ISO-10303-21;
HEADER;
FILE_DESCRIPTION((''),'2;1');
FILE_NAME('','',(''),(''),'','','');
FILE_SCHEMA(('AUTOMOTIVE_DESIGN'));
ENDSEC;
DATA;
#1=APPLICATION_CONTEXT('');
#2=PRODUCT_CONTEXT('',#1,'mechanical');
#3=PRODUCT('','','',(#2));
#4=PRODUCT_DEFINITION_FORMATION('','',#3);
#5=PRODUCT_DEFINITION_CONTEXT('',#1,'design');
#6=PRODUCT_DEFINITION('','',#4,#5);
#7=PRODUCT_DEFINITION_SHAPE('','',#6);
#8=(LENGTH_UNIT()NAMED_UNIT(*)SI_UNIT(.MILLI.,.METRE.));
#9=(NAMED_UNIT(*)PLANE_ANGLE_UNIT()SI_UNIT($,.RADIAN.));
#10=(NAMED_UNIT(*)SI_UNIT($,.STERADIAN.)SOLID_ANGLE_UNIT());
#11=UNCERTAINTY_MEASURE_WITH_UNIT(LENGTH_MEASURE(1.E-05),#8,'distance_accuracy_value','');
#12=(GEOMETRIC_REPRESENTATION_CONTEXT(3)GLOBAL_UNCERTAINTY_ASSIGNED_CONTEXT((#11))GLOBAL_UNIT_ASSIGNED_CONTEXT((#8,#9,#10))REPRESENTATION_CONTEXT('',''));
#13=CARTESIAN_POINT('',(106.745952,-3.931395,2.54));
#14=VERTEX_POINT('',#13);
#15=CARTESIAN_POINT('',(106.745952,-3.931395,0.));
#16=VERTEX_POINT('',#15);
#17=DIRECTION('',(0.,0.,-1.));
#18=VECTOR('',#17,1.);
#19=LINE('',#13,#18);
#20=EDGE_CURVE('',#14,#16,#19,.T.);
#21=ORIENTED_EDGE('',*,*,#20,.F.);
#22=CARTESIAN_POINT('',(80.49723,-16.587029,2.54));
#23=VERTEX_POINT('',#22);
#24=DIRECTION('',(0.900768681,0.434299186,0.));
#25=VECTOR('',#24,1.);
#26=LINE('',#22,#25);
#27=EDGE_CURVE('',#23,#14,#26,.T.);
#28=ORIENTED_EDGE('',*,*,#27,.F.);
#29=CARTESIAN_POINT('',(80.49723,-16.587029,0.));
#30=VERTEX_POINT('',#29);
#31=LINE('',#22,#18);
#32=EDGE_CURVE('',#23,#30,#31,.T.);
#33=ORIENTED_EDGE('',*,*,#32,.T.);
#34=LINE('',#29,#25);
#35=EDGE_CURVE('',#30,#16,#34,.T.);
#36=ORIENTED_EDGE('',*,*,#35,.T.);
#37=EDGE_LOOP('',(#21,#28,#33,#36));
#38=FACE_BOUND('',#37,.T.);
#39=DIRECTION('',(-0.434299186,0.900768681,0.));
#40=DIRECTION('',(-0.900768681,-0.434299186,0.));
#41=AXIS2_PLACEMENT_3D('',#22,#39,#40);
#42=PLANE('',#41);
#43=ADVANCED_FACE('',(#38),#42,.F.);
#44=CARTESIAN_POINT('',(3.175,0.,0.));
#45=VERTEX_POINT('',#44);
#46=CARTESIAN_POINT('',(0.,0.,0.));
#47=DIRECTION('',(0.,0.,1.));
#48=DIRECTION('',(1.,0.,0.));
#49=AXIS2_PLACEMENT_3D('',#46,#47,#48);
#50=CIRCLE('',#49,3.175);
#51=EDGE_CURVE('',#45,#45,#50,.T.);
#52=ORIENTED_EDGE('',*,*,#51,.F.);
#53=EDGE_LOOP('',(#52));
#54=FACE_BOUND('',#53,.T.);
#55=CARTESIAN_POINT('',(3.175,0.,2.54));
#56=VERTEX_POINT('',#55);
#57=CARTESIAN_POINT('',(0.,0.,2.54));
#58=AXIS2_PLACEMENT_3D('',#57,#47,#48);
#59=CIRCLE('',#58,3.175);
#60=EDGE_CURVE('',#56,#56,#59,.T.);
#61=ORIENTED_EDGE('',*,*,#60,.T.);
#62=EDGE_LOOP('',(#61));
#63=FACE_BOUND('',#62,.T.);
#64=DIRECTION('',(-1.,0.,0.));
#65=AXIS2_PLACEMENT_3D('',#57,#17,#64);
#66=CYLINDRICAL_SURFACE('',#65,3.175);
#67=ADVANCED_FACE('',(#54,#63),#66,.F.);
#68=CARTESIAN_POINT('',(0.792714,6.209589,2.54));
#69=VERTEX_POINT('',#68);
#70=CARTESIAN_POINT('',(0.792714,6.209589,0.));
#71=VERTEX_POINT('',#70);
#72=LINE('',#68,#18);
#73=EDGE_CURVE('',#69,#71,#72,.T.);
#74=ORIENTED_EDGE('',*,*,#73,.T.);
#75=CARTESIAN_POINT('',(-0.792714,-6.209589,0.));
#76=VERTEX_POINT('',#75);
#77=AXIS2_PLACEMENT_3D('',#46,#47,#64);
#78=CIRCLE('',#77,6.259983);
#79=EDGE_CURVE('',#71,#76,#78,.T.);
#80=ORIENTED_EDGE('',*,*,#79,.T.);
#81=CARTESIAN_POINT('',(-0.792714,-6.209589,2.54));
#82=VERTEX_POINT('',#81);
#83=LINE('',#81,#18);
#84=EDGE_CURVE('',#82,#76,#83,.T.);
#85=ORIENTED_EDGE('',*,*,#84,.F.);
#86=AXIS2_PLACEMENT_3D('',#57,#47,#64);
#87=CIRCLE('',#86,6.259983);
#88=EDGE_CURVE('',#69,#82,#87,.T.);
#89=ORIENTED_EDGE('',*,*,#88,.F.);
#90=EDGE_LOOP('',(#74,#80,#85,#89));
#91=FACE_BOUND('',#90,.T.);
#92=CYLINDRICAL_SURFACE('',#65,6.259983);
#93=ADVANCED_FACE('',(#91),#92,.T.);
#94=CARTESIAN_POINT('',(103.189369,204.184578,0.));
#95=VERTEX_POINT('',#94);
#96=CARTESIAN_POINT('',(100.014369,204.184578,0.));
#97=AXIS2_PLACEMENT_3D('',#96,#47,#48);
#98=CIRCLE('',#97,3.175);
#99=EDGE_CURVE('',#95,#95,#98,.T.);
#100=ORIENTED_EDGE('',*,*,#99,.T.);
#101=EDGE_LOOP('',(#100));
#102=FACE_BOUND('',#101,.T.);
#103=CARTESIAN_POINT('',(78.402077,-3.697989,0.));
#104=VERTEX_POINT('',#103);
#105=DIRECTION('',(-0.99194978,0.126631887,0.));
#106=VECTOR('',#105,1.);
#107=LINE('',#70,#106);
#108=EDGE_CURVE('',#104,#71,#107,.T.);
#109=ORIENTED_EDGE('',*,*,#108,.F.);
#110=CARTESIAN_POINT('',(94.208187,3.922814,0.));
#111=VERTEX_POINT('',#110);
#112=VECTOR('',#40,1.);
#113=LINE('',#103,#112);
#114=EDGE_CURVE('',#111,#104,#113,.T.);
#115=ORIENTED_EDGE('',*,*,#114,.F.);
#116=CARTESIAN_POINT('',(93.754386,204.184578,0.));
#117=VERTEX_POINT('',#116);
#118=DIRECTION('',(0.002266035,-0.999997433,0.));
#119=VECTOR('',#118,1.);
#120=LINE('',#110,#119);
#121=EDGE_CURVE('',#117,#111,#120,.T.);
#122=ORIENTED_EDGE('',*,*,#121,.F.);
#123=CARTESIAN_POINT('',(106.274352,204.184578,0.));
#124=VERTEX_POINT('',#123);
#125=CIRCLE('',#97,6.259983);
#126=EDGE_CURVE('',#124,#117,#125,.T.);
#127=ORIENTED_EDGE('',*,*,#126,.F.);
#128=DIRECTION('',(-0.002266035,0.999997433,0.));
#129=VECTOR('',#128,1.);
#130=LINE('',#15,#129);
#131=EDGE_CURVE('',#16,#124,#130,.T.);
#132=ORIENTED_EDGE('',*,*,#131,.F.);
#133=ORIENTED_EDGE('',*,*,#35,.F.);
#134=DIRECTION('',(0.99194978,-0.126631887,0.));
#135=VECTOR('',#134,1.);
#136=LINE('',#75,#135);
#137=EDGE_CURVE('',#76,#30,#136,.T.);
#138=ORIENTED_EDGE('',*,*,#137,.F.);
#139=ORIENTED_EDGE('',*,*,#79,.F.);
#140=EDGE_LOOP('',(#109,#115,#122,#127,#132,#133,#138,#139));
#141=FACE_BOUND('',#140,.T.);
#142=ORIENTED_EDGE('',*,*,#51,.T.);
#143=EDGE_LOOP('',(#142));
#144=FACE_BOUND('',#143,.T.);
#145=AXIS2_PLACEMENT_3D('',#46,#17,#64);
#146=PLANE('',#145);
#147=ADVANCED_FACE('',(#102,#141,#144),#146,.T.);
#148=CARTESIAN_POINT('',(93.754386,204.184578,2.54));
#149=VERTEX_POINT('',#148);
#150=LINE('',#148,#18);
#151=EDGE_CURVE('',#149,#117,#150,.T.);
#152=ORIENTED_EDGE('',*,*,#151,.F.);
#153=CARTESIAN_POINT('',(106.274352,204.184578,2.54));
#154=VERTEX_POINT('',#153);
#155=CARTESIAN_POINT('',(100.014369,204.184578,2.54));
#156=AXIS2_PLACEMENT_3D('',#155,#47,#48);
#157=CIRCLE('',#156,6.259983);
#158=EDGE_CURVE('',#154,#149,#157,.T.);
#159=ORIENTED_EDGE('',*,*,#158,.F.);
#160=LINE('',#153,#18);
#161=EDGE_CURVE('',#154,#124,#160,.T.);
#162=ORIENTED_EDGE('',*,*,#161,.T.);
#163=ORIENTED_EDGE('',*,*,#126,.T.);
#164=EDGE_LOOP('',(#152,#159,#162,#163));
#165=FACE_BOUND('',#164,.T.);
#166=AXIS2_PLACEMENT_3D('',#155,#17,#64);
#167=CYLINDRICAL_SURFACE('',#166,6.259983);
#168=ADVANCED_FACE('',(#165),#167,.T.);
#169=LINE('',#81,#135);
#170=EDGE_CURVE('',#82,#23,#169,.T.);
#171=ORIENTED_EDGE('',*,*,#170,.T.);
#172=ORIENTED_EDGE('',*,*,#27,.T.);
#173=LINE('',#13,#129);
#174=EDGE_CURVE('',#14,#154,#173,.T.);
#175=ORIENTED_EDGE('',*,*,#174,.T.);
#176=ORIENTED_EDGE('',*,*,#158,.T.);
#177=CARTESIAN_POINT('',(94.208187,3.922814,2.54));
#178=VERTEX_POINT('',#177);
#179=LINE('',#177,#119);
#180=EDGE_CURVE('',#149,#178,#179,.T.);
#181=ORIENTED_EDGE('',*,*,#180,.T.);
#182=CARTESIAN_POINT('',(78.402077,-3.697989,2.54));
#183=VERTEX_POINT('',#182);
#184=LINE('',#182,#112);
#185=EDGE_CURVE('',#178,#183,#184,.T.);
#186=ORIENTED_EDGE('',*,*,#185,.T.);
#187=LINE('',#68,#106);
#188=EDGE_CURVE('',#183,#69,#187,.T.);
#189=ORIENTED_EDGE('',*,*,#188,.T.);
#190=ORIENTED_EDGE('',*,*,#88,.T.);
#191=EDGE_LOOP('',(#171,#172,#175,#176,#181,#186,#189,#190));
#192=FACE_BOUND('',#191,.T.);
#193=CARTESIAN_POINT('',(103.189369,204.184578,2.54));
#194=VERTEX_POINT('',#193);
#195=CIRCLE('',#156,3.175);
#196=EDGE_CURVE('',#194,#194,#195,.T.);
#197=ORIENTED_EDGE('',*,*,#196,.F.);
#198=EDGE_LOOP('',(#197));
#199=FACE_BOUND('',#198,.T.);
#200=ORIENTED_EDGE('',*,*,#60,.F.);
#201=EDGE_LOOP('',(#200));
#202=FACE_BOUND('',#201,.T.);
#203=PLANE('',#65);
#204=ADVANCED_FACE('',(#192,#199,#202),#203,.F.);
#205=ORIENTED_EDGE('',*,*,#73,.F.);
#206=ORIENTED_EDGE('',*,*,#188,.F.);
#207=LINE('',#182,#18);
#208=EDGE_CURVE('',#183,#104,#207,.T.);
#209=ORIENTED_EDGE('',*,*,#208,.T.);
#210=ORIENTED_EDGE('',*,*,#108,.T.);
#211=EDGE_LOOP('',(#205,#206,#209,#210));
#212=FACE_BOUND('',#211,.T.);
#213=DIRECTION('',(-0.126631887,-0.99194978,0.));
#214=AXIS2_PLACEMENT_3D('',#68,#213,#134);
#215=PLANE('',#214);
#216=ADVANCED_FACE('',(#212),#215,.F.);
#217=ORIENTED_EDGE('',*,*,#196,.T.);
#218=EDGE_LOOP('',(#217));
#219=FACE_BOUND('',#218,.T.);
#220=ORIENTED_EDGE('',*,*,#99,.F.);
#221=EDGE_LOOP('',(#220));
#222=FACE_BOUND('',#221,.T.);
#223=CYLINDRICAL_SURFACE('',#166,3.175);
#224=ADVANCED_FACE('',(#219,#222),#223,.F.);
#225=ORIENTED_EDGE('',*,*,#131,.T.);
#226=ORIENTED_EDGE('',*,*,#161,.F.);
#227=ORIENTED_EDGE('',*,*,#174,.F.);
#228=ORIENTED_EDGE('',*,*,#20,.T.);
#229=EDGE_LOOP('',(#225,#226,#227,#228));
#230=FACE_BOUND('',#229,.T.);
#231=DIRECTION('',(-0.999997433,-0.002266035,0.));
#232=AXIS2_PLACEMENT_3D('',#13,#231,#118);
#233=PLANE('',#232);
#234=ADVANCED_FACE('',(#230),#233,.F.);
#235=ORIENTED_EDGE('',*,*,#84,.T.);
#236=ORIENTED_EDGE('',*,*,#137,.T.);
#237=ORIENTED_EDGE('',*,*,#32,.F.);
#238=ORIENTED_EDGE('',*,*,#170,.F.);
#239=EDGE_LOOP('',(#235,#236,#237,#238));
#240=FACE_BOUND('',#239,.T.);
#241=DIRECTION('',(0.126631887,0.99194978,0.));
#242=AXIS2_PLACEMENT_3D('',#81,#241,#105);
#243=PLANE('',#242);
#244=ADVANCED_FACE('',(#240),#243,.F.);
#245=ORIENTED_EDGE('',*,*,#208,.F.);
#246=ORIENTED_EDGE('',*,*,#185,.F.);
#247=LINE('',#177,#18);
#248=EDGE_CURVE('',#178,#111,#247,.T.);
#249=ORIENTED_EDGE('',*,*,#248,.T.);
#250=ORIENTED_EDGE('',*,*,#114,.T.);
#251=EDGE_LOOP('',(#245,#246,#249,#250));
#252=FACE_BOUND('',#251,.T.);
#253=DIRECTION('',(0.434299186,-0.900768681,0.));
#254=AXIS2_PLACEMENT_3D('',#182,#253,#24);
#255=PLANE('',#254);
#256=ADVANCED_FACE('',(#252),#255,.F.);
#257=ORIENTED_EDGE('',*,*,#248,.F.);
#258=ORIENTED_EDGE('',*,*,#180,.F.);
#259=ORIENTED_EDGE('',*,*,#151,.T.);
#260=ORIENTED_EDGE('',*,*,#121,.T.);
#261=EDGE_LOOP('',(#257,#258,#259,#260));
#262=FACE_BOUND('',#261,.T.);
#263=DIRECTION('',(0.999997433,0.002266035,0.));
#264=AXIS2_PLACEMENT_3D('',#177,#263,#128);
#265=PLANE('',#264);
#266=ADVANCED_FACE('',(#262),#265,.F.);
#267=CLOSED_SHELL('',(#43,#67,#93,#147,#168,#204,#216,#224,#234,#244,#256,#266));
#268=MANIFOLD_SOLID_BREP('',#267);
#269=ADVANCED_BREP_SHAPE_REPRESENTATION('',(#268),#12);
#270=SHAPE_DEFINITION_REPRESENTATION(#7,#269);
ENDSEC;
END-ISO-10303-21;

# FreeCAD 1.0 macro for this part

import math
import FreeCAD as App
import Part
import Sketcher

V = App.Vector
Q = App.Units.Quantity

doc = App.newDocument("Part")
body = doc.addObject("PartDesign::Body", "Body")

sketch1 = body.newObject("Sketcher::SketchObject", "Sketch")
sketch1.AttachmentSupport = (doc.getObject("XY_Plane"), [""])
sketch1.MapMode = "FlatFace"
sketch1.addGeometry([
    Part.LineSegment(V(-0.8, -6.2, 0), V(80.5, -16.6, 0)),
    Part.LineSegment(V(80.5, -16.6, 0), V(106.7, -3.9, 0)),
    Part.LineSegment(V(106.7, -3.9, 0), V(106.3, 204.2, 0)),
    Part.ArcOfCircle(Part.Circle(V(100, 204.2, 0), V(0, 0, 1), 6.3), math.radians(0), math.radians(180)),
    Part.LineSegment(V(93.8, 204.2, 0), V(94.2, 3.9, 0)),
    Part.LineSegment(V(94.2, 3.9, 0), V(78.4, -3.7, 0)),
    Part.LineSegment(V(78.4, -3.7, 0), V(0.8, 6.2, 0)),
    Part.ArcOfCircle(Part.Circle(V(0, 0, 0), V(0, 0, 1), 6.3), math.radians(83), math.radians(263)),
    Part.Circle(V(0, 0, 0), V(0, 0, 1), 3.2),
    Part.Circle(V(100, 204.2, 0), V(0, 0, 1), 3.2),
], False)
sketch1.addConstraint([
    Sketcher.Constraint("Coincident", 0, 2, 1, 1),
    Sketcher.Constraint("Coincident", 1, 2, 2, 1),
    Sketcher.Constraint("Coincident", 2, 2, 3, 1),
    Sketcher.Constraint("Coincident", 3, 2, 4, 1),
    Sketcher.Constraint("Coincident", 4, 2, 5, 1),
    Sketcher.Constraint("Coincident", 5, 2, 6, 1),
    Sketcher.Constraint("Tangent", 6, 2, 7, 1),
    Sketcher.Constraint("Tangent", 7, 2, 0, 1),
    Sketcher.Constraint("Coincident", 7, 3, -1, 1),
    Sketcher.Constraint("Coincident", 8, 3, -1, 1),
    Sketcher.Constraint("Coincident", 9, 3, 3, 3),
    Sketcher.Constraint("Equal", 3, 7),
    Sketcher.Constraint("Equal", 8, 9),
    Sketcher.Constraint("Parallel", 2, 4),
    Sketcher.Constraint("Parallel", 1, 5),
    Sketcher.Constraint("Parallel", 0, 6),
    Sketcher.Constraint("Horizontal", 9, 3, 2, 2),
    Sketcher.Constraint("Horizontal", 2, 2, 3, 2),
    Sketcher.Constraint("Diameter", 8, Q("0.25 in")),
    Sketcher.Constraint("Radius", 3, Q("6.259983 mm")),
    Sketcher.Constraint("DistanceX", 2, 2, 1, 2, Q("0.471599 mm")),
    Sketcher.Constraint("DistanceY", 7, 2, 5, 2, Q("2.5116 mm")),
    Sketcher.Constraint("Distance", 4, Q("200.262278 mm")),
    Sketcher.Constraint("DistanceX", -1, 1, 3, 3, Q("100.014369 mm")),
    Sketcher.Constraint("DistanceY", -1, 1, 3, 3, Q("204.184578 mm")),
    Sketcher.Constraint("DistanceX", -1, 1, 0, 2, Q("80.49723 mm")),
    Sketcher.Constraint("DistanceY", 0, 2, -1, 1, Q("16.587029 mm")),
])
pad1 = body.newObject("PartDesign::Pad", "Pad")
pad1.Profile = sketch1
pad1.Length = Q("0.1 in")

doc.recompute()
